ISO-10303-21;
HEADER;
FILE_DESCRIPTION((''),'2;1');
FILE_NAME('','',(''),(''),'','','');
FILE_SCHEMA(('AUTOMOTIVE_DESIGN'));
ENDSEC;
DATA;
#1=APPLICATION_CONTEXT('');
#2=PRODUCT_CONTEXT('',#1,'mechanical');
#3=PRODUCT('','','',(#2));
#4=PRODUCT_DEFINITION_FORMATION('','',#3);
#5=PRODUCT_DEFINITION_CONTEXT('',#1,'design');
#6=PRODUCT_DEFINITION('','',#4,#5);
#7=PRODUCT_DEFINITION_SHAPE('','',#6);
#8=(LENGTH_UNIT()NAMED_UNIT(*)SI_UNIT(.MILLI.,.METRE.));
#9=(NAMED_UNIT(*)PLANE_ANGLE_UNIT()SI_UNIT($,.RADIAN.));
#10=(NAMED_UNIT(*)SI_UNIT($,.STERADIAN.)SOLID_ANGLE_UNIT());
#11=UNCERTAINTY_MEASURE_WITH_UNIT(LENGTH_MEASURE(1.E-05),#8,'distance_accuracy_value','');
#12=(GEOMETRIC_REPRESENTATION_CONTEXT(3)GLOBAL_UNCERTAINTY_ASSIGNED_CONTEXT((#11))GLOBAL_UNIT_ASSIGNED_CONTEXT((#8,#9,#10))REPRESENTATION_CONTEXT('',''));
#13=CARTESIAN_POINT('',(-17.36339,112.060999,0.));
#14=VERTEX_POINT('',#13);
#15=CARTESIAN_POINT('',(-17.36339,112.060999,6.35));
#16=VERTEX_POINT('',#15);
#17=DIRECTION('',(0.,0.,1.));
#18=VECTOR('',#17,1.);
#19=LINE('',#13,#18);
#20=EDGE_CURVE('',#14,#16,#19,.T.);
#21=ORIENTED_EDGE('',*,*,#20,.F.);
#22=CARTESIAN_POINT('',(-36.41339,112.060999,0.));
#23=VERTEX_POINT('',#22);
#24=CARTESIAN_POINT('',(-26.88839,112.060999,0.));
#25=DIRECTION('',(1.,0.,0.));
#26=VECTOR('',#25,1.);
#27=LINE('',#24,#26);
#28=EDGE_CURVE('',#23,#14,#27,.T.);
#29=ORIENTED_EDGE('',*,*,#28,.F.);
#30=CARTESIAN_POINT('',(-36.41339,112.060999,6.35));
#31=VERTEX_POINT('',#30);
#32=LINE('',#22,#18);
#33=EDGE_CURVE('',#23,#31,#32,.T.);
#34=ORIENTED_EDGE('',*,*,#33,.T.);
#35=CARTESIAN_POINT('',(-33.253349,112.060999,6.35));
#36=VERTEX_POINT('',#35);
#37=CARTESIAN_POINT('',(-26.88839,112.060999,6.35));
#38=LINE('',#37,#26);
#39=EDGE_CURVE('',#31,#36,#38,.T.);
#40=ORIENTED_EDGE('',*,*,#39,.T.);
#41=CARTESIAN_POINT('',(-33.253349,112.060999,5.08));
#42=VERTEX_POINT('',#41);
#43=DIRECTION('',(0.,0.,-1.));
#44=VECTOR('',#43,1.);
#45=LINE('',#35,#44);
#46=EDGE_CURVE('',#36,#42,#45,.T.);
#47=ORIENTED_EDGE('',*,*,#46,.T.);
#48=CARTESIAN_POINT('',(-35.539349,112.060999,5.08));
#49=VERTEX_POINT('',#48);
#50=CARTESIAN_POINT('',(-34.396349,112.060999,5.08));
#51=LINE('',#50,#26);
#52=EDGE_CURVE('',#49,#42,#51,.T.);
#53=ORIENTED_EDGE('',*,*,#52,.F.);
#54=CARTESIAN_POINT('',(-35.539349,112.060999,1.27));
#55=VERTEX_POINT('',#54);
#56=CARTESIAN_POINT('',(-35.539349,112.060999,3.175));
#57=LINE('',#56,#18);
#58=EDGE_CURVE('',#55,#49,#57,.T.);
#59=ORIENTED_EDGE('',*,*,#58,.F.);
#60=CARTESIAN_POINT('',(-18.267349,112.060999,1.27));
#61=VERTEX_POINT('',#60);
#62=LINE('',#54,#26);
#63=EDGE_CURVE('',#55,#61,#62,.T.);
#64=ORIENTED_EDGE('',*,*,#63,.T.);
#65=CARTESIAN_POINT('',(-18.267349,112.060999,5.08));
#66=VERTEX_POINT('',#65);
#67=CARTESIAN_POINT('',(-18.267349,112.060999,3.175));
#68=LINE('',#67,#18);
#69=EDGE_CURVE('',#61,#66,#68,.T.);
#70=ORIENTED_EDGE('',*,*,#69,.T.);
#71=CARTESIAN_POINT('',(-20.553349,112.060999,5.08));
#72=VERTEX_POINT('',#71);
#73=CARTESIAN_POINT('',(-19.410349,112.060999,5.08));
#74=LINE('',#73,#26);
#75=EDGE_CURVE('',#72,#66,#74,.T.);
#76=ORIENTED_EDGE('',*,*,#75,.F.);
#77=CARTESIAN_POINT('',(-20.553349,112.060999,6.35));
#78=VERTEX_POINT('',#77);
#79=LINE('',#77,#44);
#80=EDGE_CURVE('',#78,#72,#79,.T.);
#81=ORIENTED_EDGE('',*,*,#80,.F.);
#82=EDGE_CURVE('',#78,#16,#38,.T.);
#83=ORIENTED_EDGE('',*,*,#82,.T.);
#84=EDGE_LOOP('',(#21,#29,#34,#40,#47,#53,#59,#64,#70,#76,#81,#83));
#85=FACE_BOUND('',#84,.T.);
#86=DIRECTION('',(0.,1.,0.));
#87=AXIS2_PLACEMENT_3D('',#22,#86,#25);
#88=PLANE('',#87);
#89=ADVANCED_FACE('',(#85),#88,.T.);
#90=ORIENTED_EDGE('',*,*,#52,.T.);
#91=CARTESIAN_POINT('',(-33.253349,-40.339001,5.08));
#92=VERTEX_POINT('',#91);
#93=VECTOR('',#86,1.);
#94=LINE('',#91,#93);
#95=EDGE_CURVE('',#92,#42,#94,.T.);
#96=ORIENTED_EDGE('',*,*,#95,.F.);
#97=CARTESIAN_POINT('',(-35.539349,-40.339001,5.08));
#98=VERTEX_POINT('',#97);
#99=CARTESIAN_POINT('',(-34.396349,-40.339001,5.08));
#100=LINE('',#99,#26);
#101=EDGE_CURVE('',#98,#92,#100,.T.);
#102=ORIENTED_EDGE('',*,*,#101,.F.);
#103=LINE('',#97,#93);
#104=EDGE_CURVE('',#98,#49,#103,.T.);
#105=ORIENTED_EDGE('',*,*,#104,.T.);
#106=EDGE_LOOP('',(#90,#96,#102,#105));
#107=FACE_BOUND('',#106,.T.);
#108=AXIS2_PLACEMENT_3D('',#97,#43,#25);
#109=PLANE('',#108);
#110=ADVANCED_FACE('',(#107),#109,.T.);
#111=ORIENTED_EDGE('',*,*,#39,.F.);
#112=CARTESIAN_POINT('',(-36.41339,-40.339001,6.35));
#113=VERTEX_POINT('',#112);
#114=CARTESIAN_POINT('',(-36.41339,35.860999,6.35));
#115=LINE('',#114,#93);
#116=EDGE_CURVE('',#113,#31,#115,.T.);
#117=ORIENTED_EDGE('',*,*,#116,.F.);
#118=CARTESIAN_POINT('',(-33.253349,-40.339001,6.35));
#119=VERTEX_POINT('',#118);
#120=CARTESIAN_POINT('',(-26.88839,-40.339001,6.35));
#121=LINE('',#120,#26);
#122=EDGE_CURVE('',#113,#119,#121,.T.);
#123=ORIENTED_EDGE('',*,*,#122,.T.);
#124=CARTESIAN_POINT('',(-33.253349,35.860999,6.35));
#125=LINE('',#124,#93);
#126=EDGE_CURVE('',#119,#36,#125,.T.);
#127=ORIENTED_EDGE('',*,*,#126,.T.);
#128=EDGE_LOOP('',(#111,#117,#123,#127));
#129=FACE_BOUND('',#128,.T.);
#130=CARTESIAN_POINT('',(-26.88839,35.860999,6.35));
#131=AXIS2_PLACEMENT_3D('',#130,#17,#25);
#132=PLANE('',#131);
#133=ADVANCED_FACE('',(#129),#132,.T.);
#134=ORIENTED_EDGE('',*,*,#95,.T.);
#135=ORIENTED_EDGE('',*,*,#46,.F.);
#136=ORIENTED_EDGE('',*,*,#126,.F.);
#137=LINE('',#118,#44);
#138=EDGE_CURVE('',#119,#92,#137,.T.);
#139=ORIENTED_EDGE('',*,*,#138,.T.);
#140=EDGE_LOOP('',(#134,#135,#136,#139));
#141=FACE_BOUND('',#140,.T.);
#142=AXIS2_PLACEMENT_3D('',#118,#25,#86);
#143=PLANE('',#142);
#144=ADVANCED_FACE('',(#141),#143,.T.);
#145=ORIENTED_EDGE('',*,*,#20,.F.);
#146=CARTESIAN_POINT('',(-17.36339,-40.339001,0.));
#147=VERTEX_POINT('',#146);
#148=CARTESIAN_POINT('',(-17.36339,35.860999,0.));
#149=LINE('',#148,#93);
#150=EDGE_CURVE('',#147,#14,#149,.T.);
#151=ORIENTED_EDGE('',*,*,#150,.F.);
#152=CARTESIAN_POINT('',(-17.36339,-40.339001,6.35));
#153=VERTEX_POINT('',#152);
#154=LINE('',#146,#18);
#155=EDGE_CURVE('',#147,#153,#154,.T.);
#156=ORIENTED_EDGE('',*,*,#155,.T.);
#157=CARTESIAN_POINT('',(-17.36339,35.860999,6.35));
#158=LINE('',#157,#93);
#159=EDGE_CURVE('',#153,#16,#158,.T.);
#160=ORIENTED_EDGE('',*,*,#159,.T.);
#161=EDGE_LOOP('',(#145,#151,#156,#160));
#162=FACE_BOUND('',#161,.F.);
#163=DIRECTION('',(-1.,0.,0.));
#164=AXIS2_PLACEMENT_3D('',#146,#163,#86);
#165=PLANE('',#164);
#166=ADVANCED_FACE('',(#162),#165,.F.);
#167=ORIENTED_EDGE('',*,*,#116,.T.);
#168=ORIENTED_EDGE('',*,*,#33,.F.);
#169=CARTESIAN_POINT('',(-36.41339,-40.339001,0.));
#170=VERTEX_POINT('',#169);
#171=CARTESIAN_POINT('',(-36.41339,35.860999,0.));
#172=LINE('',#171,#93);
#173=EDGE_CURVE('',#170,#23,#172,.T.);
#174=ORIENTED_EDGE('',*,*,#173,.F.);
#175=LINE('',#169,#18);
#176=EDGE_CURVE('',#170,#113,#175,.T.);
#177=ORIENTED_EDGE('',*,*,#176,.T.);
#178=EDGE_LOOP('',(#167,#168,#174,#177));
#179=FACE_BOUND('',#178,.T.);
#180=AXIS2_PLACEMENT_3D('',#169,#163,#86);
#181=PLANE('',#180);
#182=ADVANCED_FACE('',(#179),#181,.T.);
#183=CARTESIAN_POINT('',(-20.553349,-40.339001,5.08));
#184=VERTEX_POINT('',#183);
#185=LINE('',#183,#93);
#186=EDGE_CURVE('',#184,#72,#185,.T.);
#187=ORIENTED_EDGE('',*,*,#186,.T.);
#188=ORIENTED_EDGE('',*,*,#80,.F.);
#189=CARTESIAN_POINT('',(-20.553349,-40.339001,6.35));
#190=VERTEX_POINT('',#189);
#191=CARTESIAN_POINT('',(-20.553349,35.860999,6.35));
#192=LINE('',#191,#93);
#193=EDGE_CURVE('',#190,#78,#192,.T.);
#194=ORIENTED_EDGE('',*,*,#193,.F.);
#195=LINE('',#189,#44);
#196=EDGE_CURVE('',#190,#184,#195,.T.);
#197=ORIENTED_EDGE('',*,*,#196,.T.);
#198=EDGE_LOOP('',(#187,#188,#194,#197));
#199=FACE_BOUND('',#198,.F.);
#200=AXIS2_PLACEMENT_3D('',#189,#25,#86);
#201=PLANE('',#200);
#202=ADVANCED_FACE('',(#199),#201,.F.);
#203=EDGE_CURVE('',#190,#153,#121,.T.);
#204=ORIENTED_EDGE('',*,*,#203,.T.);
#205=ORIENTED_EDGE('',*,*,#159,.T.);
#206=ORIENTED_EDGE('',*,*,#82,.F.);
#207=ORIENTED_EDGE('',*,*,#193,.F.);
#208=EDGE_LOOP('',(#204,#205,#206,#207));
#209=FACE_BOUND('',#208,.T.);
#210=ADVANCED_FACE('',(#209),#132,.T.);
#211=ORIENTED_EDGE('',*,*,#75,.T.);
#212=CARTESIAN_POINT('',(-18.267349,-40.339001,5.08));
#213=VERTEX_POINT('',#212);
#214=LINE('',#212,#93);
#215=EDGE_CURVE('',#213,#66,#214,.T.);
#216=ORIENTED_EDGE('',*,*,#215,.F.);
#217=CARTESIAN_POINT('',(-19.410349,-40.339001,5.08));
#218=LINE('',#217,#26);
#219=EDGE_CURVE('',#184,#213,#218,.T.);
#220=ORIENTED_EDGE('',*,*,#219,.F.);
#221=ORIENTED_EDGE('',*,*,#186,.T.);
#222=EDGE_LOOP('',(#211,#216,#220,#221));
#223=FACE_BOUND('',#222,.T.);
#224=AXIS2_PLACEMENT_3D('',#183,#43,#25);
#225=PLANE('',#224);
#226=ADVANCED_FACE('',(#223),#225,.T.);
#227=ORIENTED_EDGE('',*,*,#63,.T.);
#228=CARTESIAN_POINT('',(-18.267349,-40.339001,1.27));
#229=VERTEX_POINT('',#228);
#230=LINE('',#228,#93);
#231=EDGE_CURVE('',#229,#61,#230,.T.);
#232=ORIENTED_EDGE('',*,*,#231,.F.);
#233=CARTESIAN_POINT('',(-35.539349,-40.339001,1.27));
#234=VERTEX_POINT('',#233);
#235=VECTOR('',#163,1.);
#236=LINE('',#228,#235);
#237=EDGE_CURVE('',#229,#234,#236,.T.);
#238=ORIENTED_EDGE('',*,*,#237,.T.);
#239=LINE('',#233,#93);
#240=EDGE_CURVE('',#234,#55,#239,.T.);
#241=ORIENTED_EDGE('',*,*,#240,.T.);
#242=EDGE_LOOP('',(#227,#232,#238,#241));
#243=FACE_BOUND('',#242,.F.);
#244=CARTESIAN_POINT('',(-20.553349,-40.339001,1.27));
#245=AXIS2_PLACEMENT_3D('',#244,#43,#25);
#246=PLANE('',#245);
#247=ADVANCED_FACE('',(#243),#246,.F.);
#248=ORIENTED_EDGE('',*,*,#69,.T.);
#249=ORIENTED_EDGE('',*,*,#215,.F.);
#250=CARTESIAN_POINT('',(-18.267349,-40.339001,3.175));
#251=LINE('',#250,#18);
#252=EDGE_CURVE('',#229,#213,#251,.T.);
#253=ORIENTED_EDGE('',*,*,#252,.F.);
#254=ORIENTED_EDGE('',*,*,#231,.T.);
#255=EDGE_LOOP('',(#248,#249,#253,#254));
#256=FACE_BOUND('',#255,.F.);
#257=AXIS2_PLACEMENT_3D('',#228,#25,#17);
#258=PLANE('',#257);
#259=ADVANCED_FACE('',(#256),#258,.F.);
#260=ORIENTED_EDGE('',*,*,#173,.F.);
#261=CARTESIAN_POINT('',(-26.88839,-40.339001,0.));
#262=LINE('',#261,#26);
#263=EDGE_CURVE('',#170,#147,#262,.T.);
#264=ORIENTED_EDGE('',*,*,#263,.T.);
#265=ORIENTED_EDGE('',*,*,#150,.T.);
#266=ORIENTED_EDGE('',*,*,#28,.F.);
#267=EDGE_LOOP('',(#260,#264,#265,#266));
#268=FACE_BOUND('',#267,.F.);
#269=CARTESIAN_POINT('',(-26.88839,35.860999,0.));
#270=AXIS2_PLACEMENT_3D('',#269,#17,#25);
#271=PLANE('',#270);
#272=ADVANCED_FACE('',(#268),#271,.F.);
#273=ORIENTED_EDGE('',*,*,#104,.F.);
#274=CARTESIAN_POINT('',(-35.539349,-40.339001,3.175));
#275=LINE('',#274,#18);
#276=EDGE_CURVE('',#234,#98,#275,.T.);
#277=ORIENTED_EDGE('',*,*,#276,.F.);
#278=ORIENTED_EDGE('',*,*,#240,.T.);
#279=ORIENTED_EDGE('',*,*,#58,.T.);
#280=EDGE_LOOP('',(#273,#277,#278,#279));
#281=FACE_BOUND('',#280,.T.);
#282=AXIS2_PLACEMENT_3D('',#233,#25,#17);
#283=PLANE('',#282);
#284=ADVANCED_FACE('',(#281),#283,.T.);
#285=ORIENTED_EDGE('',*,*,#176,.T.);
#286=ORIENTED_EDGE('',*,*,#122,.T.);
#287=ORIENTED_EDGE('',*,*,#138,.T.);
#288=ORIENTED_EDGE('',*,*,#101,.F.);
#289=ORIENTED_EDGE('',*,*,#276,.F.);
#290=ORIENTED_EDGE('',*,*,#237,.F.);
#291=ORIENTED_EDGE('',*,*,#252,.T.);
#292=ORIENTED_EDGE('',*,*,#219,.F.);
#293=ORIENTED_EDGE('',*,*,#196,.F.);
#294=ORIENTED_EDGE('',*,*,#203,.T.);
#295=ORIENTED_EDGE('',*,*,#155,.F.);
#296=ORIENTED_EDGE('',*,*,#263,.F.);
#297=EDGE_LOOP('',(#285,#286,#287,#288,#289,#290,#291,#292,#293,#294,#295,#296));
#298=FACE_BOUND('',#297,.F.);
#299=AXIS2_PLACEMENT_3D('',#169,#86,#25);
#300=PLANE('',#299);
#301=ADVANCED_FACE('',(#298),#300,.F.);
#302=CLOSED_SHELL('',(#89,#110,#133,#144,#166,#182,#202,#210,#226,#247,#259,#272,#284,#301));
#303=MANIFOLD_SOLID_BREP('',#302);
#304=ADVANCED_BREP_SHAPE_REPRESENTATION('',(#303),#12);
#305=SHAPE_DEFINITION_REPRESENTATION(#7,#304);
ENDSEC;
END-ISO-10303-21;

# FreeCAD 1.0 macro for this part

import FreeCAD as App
import Part
import Sketcher
from FreeCAD import Vector
Q = App.Units.Quantity

doc = App.newDocument("Part")
body = doc.addObject("PartDesign::Body", "Body")

# Sketch on XY plane
sketch1 = body.newObject("Sketcher::SketchObject", "Sketch")
sketch1.AttachmentSupport = (doc.getObject("XY_Plane"), [""])
sketch1.MapMode = "FlatFace"
sketch1.addGeometry([
    Part.LineSegment(Vector(-36, 112, 0), Vector(-36, -40, 0)),
    Part.LineSegment(Vector(-36, -40, 0), Vector(-17, -40, 0)),
    Part.LineSegment(Vector(-17, -40, 0), Vector(-17, 112, 0)),
    Part.LineSegment(Vector(-17, 112, 0), Vector(-36, 112, 0)),
], False)
sketch1.addConstraint([
    Sketcher.Constraint("Coincident", 0, 2, 1, 1),
    Sketcher.Constraint("Coincident", 1, 2, 2, 1),
    Sketcher.Constraint("Coincident", 2, 2, 3, 1),
    Sketcher.Constraint("Coincident", 3, 2, 0, 1),
    Sketcher.Constraint("Vertical", 0),
    Sketcher.Constraint("Horizontal", 1),
    Sketcher.Constraint("Vertical", 2),
    Sketcher.Constraint("Horizontal", 3),
    Sketcher.Constraint("DistanceY", 0, 2, 0, 1, Q("6 in")),
    Sketcher.Constraint("DistanceX", 1, 1, 1, 2, Q("0.75 in")),
    Sketcher.Constraint("DistanceY", 0, 2, -1, 1, 40.339001),
    Sketcher.Constraint("DistanceX", 0, 2, -1, 1, 36.41339),
])
pad1 = body.newObject("PartDesign::Pad", "Pad")
pad1.Profile = sketch1
pad1.Length = Q("0.25 in")

# Sketch on XY plane
sketch2 = body.newObject("Sketcher::SketchObject", "Sketch001")
sketch2.AttachmentSupport = (doc.getObject("XY_Plane"), [""])
sketch2.MapMode = "FlatFace"
sketch2.AttachmentOffset = App.Placement(Vector(0, 0, 0.25 * 25.4), App.Rotation())
sketch2.addGeometry([
    Part.LineSegment(Vector(-33, 112, 0), Vector(-33, -40, 0)),
    Part.LineSegment(Vector(-33, -40, 0), Vector(-21, -40, 0)),
    Part.LineSegment(Vector(-21, -40, 0), Vector(-21, 112, 0)),
    Part.LineSegment(Vector(-21, 112, 0), Vector(-33, 112, 0)),
], False)
sketch2.addConstraint([
    Sketcher.Constraint("Coincident", 0, 2, 1, 1),
    Sketcher.Constraint("Coincident", 1, 2, 2, 1),
    Sketcher.Constraint("Coincident", 2, 2, 3, 1),
    Sketcher.Constraint("Coincident", 3, 2, 0, 1),
    Sketcher.Constraint("Vertical", 0),
    Sketcher.Constraint("Horizontal", 1),
    Sketcher.Constraint("Vertical", 2),
    Sketcher.Constraint("Horizontal", 3),
    Sketcher.Constraint("DistanceY", 0, 2, 0, 1, Q("6 in")),
    Sketcher.Constraint("DistanceX", 1, 1, 1, 2, Q("0.5 in")),
    Sketcher.Constraint("DistanceY", 0, 2, -1, 1, 40.339001),
    Sketcher.Constraint("DistanceX", 0, 2, -1, 1, 33.253349),
])
pocket1 = body.newObject("PartDesign::Pocket", "Pocket")
pocket1.Profile = sketch2
pocket1.Length = Q("0.2 in")

# Sketch on XZ plane
sketch3 = body.newObject("Sketcher::SketchObject", "Sketch002")
sketch3.AttachmentSupport = (doc.getObject("XZ_Plane"), [""])
sketch3.MapMode = "FlatFace"
sketch3.AttachmentOffset = App.Placement(Vector(0, 0, 40.339001), App.Rotation())
sketch3.addGeometry([
    Part.LineSegment(Vector(-35.5, 5.1, 0), Vector(-35.5, 1.3, 0)),  # 0
    Part.LineSegment(Vector(-35.5, 1.3, 0), Vector(-33.3, 1.3, 0)),  # 1
    Part.LineSegment(Vector(-33.3, 1.3, 0), Vector(-33.3, 5.1, 0)),  # 2
    Part.LineSegment(Vector(-33.3, 5.1, 0), Vector(-35.5, 5.1, 0)),  # 3
    Part.LineSegment(Vector(-20.6, 5.1, 0), Vector(-20.6, 1.3, 0)),  # 4
    Part.LineSegment(Vector(-20.6, 1.3, 0), Vector(-18.3, 1.3, 0)),  # 5
    Part.LineSegment(Vector(-18.3, 1.3, 0), Vector(-18.3, 5.1, 0)),  # 6
    Part.LineSegment(Vector(-18.3, 5.1, 0), Vector(-20.6, 5.1, 0)),  # 7
], False)
sketch3.addConstraint([
    Sketcher.Constraint("Coincident", 0, 2, 1, 1),
    Sketcher.Constraint("Coincident", 1, 2, 2, 1),
    Sketcher.Constraint("Coincident", 2, 2, 3, 1),
    Sketcher.Constraint("Coincident", 3, 2, 0, 1),
    Sketcher.Constraint("Coincident", 4, 2, 5, 1),
    Sketcher.Constraint("Coincident", 5, 2, 6, 1),
    Sketcher.Constraint("Coincident", 6, 2, 7, 1),
    Sketcher.Constraint("Coincident", 7, 2, 4, 1),
    Sketcher.Constraint("Vertical", 0),
    Sketcher.Constraint("Horizontal", 1),
    Sketcher.Constraint("Vertical", 2),
    Sketcher.Constraint("Horizontal", 3),
    Sketcher.Constraint("Vertical", 4),
    Sketcher.Constraint("Horizontal", 5),
    Sketcher.Constraint("Vertical", 6),
    Sketcher.Constraint("Horizontal", 7),
    Sketcher.Constraint("Horizontal", 1, 2, 4, 2),
    Sketcher.Constraint("Horizontal", 3, 2, 6, 2),
    Sketcher.Constraint("Equal", 3, 5),
    Sketcher.Constraint("DistanceX", 1, 1, 1, 2, Q("0.09 in")),
    Sketcher.Constraint("DistanceY", 0, 2, 0, 1, Q("0.15 in")),
    Sketcher.Constraint("DistanceY", -1, 1, 2, 2, Q("0.2 in")),
    Sketcher.Constraint("DistanceX", 1, 2, 4, 2, Q("0.5 in")),
    Sketcher.Constraint("DistanceX", 0, 2, -1, 1, 35.539349),
])
pocket2 = body.newObject("PartDesign::Pocket", "Pocket001")
pocket2.Profile = sketch3
pocket2.Length = Q("6 in")

doc.recompute()
